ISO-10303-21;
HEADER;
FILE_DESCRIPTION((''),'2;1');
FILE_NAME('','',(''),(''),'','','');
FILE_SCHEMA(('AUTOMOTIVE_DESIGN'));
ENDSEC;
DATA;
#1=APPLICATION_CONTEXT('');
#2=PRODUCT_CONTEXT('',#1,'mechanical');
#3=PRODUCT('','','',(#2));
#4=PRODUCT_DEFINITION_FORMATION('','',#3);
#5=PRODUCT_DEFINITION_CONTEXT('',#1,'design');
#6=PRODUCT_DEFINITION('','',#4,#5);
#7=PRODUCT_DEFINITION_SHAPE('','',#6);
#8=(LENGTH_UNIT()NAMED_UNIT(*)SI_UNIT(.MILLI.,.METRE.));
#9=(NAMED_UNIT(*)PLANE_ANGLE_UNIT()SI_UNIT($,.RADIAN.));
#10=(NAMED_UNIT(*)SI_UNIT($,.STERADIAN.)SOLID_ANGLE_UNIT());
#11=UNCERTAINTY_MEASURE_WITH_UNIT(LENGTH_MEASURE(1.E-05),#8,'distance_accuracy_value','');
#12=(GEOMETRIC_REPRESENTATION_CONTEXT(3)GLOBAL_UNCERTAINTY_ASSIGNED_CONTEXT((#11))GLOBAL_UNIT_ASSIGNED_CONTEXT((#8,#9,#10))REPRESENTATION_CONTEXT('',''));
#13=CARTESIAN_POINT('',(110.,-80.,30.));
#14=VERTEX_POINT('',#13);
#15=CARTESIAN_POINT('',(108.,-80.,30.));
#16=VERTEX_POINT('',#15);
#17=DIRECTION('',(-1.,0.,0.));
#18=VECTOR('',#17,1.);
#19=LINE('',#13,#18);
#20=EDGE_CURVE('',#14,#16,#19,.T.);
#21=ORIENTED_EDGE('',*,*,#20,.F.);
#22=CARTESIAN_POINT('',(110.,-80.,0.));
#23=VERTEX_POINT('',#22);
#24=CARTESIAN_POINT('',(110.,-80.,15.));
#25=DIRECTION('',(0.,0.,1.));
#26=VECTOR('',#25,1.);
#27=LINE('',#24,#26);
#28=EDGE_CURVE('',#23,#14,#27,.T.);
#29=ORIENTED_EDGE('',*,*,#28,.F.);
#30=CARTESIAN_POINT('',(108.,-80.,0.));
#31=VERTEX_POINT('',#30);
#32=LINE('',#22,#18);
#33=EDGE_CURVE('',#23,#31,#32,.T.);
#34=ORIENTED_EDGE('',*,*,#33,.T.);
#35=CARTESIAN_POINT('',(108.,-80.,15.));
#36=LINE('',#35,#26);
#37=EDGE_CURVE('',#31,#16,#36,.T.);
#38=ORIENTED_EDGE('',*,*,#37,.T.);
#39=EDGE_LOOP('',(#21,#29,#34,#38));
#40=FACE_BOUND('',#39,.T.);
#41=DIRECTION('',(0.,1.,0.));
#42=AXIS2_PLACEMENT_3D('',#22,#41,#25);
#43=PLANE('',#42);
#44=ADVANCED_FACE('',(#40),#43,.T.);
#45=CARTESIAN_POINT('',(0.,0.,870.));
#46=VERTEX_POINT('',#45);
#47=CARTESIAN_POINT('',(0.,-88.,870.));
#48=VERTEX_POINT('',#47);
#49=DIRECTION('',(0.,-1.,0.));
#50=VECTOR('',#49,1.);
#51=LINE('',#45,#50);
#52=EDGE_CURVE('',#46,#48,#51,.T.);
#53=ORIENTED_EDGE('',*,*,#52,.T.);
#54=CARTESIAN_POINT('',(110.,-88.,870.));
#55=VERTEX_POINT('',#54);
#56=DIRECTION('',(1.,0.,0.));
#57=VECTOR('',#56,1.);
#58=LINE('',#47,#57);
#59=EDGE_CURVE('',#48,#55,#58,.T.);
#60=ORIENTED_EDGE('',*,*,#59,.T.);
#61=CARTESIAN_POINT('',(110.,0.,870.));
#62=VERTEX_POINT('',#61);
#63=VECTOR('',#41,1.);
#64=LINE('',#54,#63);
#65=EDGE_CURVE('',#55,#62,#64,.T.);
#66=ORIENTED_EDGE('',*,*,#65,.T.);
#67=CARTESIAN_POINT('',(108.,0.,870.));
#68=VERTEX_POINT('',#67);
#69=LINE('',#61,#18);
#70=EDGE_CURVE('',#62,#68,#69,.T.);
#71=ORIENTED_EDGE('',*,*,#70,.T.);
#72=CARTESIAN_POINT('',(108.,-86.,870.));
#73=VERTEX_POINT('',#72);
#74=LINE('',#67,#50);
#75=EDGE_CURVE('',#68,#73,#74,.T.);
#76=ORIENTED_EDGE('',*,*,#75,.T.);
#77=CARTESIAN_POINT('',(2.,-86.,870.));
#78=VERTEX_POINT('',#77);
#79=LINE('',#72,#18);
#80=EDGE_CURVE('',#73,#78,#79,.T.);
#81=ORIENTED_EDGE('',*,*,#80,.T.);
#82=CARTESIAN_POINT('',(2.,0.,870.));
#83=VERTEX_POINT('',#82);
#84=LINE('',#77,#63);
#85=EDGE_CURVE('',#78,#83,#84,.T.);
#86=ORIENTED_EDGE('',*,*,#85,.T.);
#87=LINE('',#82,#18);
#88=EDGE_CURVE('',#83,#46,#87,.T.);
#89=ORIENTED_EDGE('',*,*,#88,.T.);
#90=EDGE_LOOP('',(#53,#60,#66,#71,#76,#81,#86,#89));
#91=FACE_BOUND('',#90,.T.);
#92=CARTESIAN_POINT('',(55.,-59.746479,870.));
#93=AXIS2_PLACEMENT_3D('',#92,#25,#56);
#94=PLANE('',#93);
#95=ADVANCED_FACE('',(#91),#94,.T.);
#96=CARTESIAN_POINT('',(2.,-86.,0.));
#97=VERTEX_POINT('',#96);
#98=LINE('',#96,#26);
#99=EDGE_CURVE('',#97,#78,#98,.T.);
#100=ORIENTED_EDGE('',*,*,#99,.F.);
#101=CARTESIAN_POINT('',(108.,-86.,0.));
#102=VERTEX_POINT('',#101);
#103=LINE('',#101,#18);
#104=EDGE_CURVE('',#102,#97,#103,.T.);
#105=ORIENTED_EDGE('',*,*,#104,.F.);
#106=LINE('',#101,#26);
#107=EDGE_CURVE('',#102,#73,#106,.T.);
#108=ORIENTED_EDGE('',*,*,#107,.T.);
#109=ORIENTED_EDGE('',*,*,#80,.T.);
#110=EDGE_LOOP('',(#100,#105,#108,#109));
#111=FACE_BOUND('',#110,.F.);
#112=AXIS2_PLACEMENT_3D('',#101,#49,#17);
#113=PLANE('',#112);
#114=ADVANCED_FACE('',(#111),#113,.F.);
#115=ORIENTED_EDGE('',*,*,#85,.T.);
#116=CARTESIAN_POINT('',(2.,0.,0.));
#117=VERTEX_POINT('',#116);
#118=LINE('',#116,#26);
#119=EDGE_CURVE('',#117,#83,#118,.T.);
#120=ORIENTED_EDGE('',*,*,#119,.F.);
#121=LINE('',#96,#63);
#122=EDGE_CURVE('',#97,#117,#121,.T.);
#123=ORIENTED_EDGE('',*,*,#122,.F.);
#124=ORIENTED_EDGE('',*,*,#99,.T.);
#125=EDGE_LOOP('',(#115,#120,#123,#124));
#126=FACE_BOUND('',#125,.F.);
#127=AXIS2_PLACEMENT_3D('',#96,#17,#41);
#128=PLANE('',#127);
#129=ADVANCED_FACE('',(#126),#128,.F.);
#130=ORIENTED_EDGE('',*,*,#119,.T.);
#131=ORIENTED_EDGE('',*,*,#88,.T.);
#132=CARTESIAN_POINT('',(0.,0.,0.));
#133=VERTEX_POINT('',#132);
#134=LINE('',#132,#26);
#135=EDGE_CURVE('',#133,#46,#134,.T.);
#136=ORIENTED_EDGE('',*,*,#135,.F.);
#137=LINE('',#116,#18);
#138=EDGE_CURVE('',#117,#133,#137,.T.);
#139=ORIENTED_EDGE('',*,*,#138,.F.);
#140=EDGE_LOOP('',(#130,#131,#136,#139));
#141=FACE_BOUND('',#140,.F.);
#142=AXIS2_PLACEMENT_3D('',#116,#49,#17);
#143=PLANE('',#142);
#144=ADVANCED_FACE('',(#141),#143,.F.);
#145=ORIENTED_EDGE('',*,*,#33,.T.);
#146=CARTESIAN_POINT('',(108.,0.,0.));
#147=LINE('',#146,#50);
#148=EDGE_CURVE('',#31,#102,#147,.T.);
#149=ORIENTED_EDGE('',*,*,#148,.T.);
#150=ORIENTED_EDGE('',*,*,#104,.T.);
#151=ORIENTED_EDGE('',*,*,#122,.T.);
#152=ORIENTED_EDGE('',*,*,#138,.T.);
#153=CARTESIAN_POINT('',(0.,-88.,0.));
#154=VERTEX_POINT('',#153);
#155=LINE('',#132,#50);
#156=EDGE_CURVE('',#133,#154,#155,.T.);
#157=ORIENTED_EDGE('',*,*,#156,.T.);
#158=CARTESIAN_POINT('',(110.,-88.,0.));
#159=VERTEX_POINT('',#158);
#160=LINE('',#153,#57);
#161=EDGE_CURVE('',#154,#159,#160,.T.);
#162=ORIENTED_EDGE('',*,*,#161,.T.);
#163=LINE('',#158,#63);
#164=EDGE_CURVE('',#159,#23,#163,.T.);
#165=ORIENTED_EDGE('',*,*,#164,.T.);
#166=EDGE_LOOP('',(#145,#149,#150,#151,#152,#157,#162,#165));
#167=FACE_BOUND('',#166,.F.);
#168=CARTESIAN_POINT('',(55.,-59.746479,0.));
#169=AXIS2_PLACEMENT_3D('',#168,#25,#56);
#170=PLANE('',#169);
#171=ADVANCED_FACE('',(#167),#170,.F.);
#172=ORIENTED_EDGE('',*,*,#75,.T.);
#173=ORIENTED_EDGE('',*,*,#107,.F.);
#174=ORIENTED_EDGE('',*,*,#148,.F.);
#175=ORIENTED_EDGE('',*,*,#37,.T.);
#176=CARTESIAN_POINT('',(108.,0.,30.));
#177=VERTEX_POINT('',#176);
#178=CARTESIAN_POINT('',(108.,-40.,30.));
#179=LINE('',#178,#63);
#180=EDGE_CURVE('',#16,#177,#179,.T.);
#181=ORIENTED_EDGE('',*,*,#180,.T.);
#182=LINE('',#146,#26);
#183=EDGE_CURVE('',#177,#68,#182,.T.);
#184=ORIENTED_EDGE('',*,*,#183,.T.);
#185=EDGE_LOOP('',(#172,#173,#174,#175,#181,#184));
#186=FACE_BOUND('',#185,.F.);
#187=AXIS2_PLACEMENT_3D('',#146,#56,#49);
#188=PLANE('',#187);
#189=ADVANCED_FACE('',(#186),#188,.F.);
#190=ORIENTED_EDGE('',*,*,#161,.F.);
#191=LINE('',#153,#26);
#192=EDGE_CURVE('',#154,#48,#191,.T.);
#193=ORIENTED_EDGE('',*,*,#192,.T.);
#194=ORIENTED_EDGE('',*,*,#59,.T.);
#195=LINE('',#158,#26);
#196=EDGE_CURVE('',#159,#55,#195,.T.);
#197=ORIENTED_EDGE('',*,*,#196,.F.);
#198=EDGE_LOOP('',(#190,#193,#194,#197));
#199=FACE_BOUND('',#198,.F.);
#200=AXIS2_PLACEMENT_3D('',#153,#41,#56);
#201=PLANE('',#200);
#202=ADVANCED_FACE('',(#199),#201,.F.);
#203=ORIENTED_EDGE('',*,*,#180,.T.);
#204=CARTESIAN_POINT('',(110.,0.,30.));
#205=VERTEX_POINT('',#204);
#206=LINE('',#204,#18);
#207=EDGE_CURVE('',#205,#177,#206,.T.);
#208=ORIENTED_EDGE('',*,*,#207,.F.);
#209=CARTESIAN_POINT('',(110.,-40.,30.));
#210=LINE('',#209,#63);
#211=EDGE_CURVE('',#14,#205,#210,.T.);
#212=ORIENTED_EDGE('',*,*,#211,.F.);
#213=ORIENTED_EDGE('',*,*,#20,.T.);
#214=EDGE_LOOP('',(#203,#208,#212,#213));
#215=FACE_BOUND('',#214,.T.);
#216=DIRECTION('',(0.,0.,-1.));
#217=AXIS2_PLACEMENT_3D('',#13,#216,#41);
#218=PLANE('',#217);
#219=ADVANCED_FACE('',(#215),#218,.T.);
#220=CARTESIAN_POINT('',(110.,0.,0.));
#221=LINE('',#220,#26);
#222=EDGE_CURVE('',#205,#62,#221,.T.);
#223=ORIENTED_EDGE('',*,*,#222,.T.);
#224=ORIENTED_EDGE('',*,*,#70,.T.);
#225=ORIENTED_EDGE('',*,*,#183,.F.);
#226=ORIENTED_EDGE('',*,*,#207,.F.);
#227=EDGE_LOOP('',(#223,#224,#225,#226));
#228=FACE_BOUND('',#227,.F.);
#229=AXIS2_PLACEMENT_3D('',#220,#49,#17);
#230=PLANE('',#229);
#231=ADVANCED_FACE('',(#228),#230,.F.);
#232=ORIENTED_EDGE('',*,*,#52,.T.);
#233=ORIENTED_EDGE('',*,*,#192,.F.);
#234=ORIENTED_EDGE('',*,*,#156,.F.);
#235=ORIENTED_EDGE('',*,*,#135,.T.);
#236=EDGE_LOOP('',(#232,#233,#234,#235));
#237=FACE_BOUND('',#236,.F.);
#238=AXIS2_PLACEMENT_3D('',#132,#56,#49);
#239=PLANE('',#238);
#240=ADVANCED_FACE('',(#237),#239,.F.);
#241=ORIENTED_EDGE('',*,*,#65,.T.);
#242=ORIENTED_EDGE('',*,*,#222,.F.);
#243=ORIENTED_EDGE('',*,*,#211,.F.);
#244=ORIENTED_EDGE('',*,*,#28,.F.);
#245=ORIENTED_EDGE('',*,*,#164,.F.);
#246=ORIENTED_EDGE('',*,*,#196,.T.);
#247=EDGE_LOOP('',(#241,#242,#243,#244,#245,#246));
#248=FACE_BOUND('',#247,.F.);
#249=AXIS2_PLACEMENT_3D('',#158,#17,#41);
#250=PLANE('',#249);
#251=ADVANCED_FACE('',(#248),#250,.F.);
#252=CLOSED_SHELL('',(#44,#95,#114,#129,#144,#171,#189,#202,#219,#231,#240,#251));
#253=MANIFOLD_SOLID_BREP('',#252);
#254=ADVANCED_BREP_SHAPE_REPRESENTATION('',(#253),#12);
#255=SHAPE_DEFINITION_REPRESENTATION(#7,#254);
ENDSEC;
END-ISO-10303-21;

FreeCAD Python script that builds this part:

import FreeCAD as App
import Part
import Sketcher
Q = App.Units.Quantity


def add_polygon(sketch, points):
    """Adds a closed chain of lines whose ends are joined by coincident constraints."""
    first, n = sketch.GeometryCount, len(points)
    for a, b in zip(points, points[1:] + points[:1]):
        sketch.addGeometry(Part.LineSegment(App.Vector(*a, 0), App.Vector(*b, 0)), False)
    for i in range(n):
        sketch.addConstraint(Sketcher.Constraint("Coincident", first + i, 2, first + (i + 1) % n, 1))

doc = App.newDocument("Part")
body = doc.addObject("PartDesign::Body", "Body")

sketch1 = body.newObject("Sketcher::SketchObject", "Sketch")
sketch1.AttachmentSupport = (doc.getObject("XY_Plane"), [""])
sketch1.MapMode = "FlatFace"
add_polygon(sketch1, [(2, 0), (0, 0), (0, -88), (110, -88), (110, 0), (108, 0), (108, -86), (2, -86)])
sketch1.addConstraint([
    Sketcher.Constraint("Horizontal", 0),
    Sketcher.Constraint("Vertical", 1),
    Sketcher.Constraint("Horizontal", 2),
    Sketcher.Constraint("Vertical", 3),
    Sketcher.Constraint("Horizontal", 4),
    Sketcher.Constraint("Vertical", 5),
    Sketcher.Constraint("Horizontal", 6),
    Sketcher.Constraint("Vertical", 7),
    Sketcher.Constraint("Coincident", 0, 2, -1, 1),
    Sketcher.Constraint("PointOnObject", 3, 2, -1),
    Sketcher.Constraint("Equal", 0, 4),
    Sketcher.Constraint("DistanceX", 0, 2, 0, 1, Q("2 mm")),
    Sketcher.Constraint("DistanceX", 2, 1, 2, 2, Q("110 mm")),
    Sketcher.Constraint("DistanceY", 1, 2, 1, 1, Q("88 mm")),
    Sketcher.Constraint("DistanceY", 5, 2, 5, 1, Q("86 mm")),
])
pad1 = body.newObject("PartDesign::Pad", "Pad")
pad1.Profile = sketch1
pad1.Length = 870

sketch2 = body.newObject("Sketcher::SketchObject", "Sketch001")
sketch2.AttachmentSupport = (doc.getObject("YZ_Plane"), [""])
sketch2.MapMode = "FlatFace"
sketch2.AttachmentOffset = App.Placement(App.Vector(0, 0, 110), App.Rotation())
add_polygon(sketch2, [(-80, 30), (-80, 0), (0, 0), (0, 30)])
sketch2.addConstraint([
    Sketcher.Constraint("Vertical", 0),
    Sketcher.Constraint("Horizontal", 1),
    Sketcher.Constraint("Vertical", 2),
    Sketcher.Constraint("Horizontal", 3),
    Sketcher.Constraint("Coincident", 1, 2, -1, 1),
    Sketcher.Constraint("DistanceX", 1, 1, 1, 2, Q("80 mm")),
    Sketcher.Constraint("DistanceY", 0, 2, 0, 1, Q("30 mm")),
])
pocket1 = body.newObject("PartDesign::Pocket", "Pocket")
pocket1.Profile = sketch2
pocket1.Length = 2

doc.recompute()
